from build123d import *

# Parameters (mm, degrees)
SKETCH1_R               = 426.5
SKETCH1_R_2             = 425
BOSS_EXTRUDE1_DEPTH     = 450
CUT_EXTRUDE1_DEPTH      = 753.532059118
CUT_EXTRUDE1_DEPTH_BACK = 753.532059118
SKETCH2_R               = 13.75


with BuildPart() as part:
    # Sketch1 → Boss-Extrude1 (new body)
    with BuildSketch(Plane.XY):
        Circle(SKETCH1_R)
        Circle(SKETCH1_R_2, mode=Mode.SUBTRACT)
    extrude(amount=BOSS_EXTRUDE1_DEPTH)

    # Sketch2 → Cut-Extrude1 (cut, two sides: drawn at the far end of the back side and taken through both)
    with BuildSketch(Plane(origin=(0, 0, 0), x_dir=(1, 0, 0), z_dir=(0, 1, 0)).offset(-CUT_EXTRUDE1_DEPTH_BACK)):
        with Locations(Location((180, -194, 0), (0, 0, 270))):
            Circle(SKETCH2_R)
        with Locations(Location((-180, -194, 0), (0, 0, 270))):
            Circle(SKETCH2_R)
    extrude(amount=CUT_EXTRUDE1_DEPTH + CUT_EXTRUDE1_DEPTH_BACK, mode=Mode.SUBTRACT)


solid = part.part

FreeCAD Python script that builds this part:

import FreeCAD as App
import Part
import Sketcher
from FreeCAD import Vector
Q = App.Units.Quantity

doc = App.newDocument("Part")
params = doc.addObject("Spreadsheet::Sheet", "Params")
for row, (alias, value) in enumerate([
    ("sketch1_diameter", "853 mm"),
    ("sketch1_diameter2", "850 mm"),
    ("pad1_length", "450 mm"),
    ("sketch2_diameter", "27.5 mm"),
], start=1):
    params.set(f"A{row}", alias)
    params.set(f"B{row}", "=" + value)
    params.setAlias(f"B{row}", alias)

body = doc.addObject("PartDesign::Body", "Body")

sketch1 = body.newObject("Sketcher::SketchObject", "Sketch")
sketch1.AttachmentSupport = (doc.getObject("XY_Plane"), [""])
sketch1.MapMode = "FlatFace"
sketch1.addGeometry([
    Part.Circle(Vector(0, 0, 0), Vector(0, 0, 1), 426.5),
    Part.Circle(Vector(0, 0, 0), Vector(0, 0, 1), 425),
], False)
sketch1.addConstraint([
    Sketcher.Constraint("Coincident", 0, 3, -1, 1),
    Sketcher.Constraint("Coincident", 1, 3, -1, 1),
    Sketcher.Constraint("Diameter", 0, Q("853 mm")),
    Sketcher.Constraint("Diameter", 1, Q("850 mm")),
])
sketch1.setExpression("Constraints[2]", "Params.sketch1_diameter")
sketch1.setExpression("Constraints[3]", "Params.sketch1_diameter2")
pad1 = body.newObject("PartDesign::Pad", "Pad")
pad1.Profile = sketch1
pad1.setExpression("Length", "Params.pad1_length")

sketch2 = body.newObject("Sketcher::SketchObject", "Sketch001")
sketch2.AttachmentSupport = (doc.getObject("XZ_Plane"), [""])
sketch2.MapMode = "FlatFace"
sketch2.addGeometry([
    Part.Circle(Vector(180, 194, 0), Vector(0, 0, 1), 13.75),
    Part.Circle(Vector(-180, 194, 0), Vector(0, 0, 1), 13.75),
], False)
sketch2.addConstraint([
    Sketcher.Constraint("Equal", 0, 1),
    Sketcher.Constraint("Symmetric", 0, 3, 1, 3, -2),
    Sketcher.Constraint("Diameter", 0, Q("27.5 mm")),
    Sketcher.Constraint("DistanceX", -1, 1, 0, 3, Q("180 mm")),
    Sketcher.Constraint("DistanceY", -1, 1, 0, 3, Q("194 mm")),
])
sketch2.setExpression("Constraints[2]", "Params.sketch2_diameter")
pocket1 = body.newObject("PartDesign::Pocket", "Pocket")
pocket1.Profile = sketch2
pocket1.Type = "ThroughAll"
pocket1.Midplane = True

doc.recompute()
